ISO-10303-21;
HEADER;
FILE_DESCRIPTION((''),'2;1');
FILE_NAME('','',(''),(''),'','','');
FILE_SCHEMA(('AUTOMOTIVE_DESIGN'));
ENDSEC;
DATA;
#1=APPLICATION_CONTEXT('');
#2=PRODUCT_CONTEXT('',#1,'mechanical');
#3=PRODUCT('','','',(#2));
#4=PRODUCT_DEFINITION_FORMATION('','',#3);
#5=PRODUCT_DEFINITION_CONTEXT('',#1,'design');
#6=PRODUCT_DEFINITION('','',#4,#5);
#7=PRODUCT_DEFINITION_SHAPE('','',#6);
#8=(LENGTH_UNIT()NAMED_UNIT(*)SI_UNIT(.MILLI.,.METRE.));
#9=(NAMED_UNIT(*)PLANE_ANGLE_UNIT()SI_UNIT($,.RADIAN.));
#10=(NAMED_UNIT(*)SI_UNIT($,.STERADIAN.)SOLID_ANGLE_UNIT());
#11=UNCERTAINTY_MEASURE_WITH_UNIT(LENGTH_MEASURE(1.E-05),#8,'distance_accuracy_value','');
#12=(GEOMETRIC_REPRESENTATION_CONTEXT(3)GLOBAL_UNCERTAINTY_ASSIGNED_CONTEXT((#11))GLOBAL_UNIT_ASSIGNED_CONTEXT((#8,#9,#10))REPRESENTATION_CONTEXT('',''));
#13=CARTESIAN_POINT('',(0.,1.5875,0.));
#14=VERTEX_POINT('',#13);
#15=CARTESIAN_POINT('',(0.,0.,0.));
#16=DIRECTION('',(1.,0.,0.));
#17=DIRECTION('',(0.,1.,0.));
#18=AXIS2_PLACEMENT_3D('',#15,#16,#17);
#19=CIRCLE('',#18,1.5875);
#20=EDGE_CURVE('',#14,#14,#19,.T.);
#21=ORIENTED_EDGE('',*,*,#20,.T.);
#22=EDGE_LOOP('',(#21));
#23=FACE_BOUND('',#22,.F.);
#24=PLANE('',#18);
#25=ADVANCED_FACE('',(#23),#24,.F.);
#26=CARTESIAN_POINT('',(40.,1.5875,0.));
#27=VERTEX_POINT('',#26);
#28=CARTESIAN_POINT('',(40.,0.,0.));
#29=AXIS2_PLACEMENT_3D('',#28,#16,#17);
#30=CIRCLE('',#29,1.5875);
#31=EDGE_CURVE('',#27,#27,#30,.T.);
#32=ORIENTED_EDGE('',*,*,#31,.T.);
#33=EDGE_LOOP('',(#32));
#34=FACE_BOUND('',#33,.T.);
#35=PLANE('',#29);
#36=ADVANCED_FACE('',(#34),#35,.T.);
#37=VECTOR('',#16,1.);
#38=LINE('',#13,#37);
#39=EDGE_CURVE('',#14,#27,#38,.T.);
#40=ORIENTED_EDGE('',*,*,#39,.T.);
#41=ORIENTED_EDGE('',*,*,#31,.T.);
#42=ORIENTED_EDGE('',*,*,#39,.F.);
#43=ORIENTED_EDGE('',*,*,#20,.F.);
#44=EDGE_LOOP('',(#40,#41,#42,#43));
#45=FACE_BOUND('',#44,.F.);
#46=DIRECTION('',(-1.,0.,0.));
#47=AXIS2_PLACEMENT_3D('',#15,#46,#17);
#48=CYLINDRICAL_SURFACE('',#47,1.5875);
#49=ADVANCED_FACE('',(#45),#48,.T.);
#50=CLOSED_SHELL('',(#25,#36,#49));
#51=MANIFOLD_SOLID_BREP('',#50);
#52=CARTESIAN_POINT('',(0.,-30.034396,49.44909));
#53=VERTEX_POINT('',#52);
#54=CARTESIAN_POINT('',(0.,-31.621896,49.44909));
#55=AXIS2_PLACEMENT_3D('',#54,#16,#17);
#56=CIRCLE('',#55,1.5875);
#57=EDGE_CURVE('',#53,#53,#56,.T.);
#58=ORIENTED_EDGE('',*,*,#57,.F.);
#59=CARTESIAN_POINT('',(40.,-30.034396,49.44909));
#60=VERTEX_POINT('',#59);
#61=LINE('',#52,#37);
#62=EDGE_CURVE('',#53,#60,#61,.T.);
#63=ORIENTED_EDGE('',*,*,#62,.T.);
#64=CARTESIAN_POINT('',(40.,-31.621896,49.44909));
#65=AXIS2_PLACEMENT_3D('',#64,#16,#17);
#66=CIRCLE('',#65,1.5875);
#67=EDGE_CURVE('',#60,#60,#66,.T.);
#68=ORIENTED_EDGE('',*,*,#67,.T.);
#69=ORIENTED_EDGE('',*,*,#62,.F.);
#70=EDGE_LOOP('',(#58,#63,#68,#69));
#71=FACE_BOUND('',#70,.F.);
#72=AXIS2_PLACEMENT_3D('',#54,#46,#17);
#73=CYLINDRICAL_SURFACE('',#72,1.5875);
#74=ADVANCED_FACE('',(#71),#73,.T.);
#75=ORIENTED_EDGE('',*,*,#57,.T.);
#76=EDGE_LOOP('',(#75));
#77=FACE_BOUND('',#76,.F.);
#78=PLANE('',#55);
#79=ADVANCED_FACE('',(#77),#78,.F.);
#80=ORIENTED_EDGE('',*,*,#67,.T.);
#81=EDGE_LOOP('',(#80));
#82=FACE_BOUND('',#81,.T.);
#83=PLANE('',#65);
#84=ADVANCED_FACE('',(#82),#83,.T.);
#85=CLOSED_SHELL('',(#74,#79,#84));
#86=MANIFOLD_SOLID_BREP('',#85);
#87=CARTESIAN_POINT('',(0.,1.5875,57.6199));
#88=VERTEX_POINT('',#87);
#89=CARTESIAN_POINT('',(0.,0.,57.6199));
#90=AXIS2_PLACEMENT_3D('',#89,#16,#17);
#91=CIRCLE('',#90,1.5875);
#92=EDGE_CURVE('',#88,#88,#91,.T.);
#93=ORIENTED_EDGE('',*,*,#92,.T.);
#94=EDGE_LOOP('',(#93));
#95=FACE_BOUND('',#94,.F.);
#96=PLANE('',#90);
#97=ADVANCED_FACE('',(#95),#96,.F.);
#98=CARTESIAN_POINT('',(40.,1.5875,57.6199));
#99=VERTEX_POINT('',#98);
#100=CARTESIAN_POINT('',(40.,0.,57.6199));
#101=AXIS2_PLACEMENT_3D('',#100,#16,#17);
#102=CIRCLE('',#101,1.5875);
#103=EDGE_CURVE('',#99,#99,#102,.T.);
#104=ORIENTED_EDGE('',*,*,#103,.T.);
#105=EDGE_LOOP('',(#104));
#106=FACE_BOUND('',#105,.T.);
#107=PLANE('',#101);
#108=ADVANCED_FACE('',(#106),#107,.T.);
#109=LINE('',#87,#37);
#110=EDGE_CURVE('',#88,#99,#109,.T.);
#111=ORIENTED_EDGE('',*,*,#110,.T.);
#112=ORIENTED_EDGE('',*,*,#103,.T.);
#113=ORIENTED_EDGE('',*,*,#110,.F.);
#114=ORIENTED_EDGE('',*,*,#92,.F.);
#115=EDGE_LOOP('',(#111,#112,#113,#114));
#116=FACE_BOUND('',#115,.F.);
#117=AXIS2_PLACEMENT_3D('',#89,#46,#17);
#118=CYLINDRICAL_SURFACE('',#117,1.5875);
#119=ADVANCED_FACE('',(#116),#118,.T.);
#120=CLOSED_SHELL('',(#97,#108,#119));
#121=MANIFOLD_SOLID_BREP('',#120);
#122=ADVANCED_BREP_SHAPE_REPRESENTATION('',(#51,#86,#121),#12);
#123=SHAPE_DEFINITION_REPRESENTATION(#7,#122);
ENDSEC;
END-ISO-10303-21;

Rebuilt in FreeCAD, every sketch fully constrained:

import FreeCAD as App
import Part
import Sketcher

V = App.Vector

doc = App.newDocument("Part")
body = doc.addObject("PartDesign::Body", "Body")

# Sketch on YZ plane
sketch1 = body.newObject("Sketcher::SketchObject", "Sketch")
sketch1.AttachmentSupport = (doc.getObject("YZ_Plane"), [""])
sketch1.MapMode = "FlatFace"
sketch1.addGeometry(Part.Circle(V(0, 0, 0), V(0, 0, 1), 1.5875), False)
sketch1.addConstraint(Sketcher.Constraint("Coincident", 0, 3, -1, 1))
sketch1.addConstraint(Sketcher.Constraint("Diameter", 0, 3.175))
pad1 = body.newObject("PartDesign::Pad", "Pad")
pad1.Profile = sketch1
pad1.Length = 40
body2 = doc.addObject("PartDesign::Body", "Body001")
body2.AllowCompound = True

# Sketch on YZ plane
sketch2 = body2.newObject("Sketcher::SketchObject", "Sketch001")
sketch2.AttachmentSupport = (doc.getObject("YZ_Plane001"), [""])
sketch2.MapMode = "FlatFace"
sketch2.addGeometry(Part.Circle(V(-31.621896, 49.44909, 0), V(0, 0, 1), 1.5875), False)
sketch2.addGeometry(Part.Circle(V(0, 57.6199, 0), V(0, 0, 1), 1.5875), False)
sketch2.addConstraint(Sketcher.Constraint("Equal", 0, 1))
sketch2.addConstraint(Sketcher.Constraint("PointOnObject", 1, 3, -2))
sketch2.addConstraint(Sketcher.Constraint("Diameter", 0, 3.175))
sketch2.addConstraint(Sketcher.Constraint("DistanceY", -1, 1, 1, 3, 57.6199))
sketch2.addConstraint(Sketcher.Constraint("DistanceY", -1, 1, 0, 3, 49.44909))
sketch2.addConstraint(Sketcher.Constraint("DistanceX", 0, 3, -1, 1, 31.621896))
pad2 = body2.newObject("PartDesign::Pad", "Pad001")
pad2.Profile = sketch2
pad2.Length = 40

doc.recompute()
